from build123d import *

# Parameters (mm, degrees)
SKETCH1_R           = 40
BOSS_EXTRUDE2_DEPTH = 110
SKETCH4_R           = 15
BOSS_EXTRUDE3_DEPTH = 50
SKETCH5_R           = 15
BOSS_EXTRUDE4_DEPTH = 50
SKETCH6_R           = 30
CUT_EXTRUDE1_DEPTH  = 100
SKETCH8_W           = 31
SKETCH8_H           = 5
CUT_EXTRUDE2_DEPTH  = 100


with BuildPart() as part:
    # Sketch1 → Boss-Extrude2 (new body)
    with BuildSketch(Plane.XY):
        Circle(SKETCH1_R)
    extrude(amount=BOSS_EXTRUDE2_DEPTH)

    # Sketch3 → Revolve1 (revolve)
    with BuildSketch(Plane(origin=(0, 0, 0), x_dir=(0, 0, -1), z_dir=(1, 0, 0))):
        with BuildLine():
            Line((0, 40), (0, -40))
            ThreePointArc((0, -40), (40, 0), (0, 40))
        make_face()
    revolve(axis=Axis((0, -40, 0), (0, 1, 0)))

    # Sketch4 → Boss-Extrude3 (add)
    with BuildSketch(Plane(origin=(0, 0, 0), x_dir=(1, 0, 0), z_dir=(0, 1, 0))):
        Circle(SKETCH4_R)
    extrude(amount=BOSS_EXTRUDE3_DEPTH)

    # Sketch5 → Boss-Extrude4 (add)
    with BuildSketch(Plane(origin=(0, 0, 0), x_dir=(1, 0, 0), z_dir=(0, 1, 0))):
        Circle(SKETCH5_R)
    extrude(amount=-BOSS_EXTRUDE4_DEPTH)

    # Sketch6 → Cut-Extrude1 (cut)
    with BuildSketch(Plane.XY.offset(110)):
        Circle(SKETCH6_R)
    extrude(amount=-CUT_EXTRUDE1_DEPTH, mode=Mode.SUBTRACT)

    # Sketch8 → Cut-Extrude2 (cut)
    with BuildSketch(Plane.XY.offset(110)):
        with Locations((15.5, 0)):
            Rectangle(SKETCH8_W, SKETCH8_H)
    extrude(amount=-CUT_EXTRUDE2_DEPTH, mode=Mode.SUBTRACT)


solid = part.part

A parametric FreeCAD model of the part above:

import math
import FreeCAD as App
import Part
import Sketcher

V = App.Vector


def add_polygon(sketch, points):
    """Adds a closed chain of lines whose ends are joined by coincident constraints."""
    first, n = sketch.GeometryCount, len(points)
    for a, b in zip(points, points[1:] + points[:1]):
        sketch.addGeometry(Part.LineSegment(App.Vector(*a, 0), App.Vector(*b, 0)), False)
    for i in range(n):
        sketch.addConstraint(Sketcher.Constraint("Coincident", first + i, 2, first + (i + 1) % n, 1))

doc = App.newDocument("Part")
params = doc.addObject("Spreadsheet::Sheet", "Params")
for row, (alias, value) in enumerate([
    ("sketch1_diameter", "80 mm"),
    ("pad1_length", "110 mm"),
    ("sketch2_radius", "40 mm"),
    ("revolution_angle", "360 deg"),
    ("sketch3_diameter", "30 mm"),
    ("pad2_length", "50 mm"),
    ("sketch4_diameter", "30 mm"),
    ("pad3_length", "50 mm"),
    ("sketch5_diameter", "60 mm"),
    ("pocket1_length", "100 mm"),
    ("sketch6_width", "31 mm"),
    ("sketch6_height", "5 mm"),
    ("pocket2_length", "100 mm"),
], start=1):
    params.set(f"A{row}", alias)
    params.set(f"B{row}", "=" + value)
    params.setAlias(f"B{row}", alias)

body = doc.addObject("PartDesign::Body", "Body")

sketch1 = body.newObject("Sketcher::SketchObject", "Sketch")
sketch1.AttachmentSupport = (doc.getObject("XY_Plane"), [""])
sketch1.MapMode = "FlatFace"
sketch1.addGeometry(Part.Circle(V(0, 0, 0), V(0, 0, 1), 40), False)
sketch1.addConstraint(Sketcher.Constraint("Coincident", 0, 3, -1, 1))
sketch1.addConstraint(Sketcher.Constraint("Diameter", 0, 80.0))
sketch1.setExpression("Constraints[1]", "Params.sketch1_diameter")
pad1 = body.newObject("PartDesign::Pad", "Pad")
pad1.Profile = sketch1
pad1.setExpression("Length", "Params.pad1_length")

sketch2 = body.newObject("Sketcher::SketchObject", "Sketch001")
sketch2.AttachmentSupport = (doc.getObject("YZ_Plane"), [""])
sketch2.MapMode = "FlatFace"
sketch2.addGeometry(Part.LineSegment(V(40, 0, 0), V(-40, 0, 0)), False)
sketch2.addGeometry(Part.ArcOfCircle(Part.Circle(V(0, 0, 0), V(0, 0, 1), 40), math.radians(180), math.radians(360)), False)
sketch2.addConstraint(Sketcher.Constraint("Coincident", 0, 1, 1, 2))
sketch2.addConstraint(Sketcher.Constraint("Coincident", 1, 1, 0, 2))
sketch2.addConstraint(Sketcher.Constraint("Horizontal", 0))
sketch2.addConstraint(Sketcher.Constraint("Coincident", 1, 3, -1, 1))
sketch2.addConstraint(Sketcher.Constraint("PointOnObject", 0, 1, -1))
sketch2.addConstraint(Sketcher.Constraint("Radius", 1, 40.0))
sketch2.setExpression("Constraints[5]", "Params.sketch2_radius")
revolution = body.newObject("PartDesign::Revolution", "Revolution")
revolution.Profile = sketch2
revolution.ReferenceAxis = (sketch2, ["H_Axis"])
revolution.setExpression("Angle", "Params.revolution_angle")

sketch3 = body.newObject("Sketcher::SketchObject", "Sketch002")
sketch3.AttachmentSupport = (doc.getObject("XZ_Plane"), [""])
sketch3.MapMode = "FlatFace"
sketch3.addGeometry(Part.Circle(V(0, 0, 0), V(0, 0, 1), 15), False)
sketch3.addConstraint(Sketcher.Constraint("Coincident", 0, 3, -1, 1))
sketch3.addConstraint(Sketcher.Constraint("Diameter", 0, 30.0))
sketch3.setExpression("Constraints[1]", "Params.sketch3_diameter")
pad2 = body.newObject("PartDesign::Pad", "Pad001")
pad2.Profile = sketch3
pad2.setExpression("Length", "Params.pad2_length")
pad2.Reversed = True

sketch4 = body.newObject("Sketcher::SketchObject", "Sketch003")
sketch4.AttachmentSupport = (doc.getObject("XZ_Plane"), [""])
sketch4.MapMode = "FlatFace"
sketch4.addGeometry(Part.Circle(V(0, 0, 0), V(0, 0, 1), 15), False)
sketch4.addConstraint(Sketcher.Constraint("Coincident", 0, 3, -1, 1))
sketch4.addConstraint(Sketcher.Constraint("Diameter", 0, 30.0))
sketch4.setExpression("Constraints[1]", "Params.sketch4_diameter")
pad3 = body.newObject("PartDesign::Pad", "Pad002")
pad3.Profile = sketch4
pad3.setExpression("Length", "Params.pad3_length")

sketch5 = body.newObject("Sketcher::SketchObject", "Sketch004")
sketch5.AttachmentSupport = (doc.getObject("XY_Plane"), [""])
sketch5.MapMode = "FlatFace"
sketch5.AttachmentOffset = App.Placement(V(0, 0, 110), App.Rotation())
sketch5.addGeometry(Part.Circle(V(0, 0, 0), V(0, 0, 1), 30), False)
sketch5.addConstraint(Sketcher.Constraint("Coincident", 0, 3, -1, 1))
sketch5.addConstraint(Sketcher.Constraint("Diameter", 0, 60.0))
sketch5.setExpression("Constraints[1]", "Params.sketch5_diameter")
pocket1 = body.newObject("PartDesign::Pocket", "Pocket")
pocket1.Profile = sketch5
pocket1.setExpression("Length", "Params.pocket1_length")

sketch6 = body.newObject("Sketcher::SketchObject", "Sketch005")
sketch6.AttachmentSupport = (doc.getObject("XY_Plane"), [""])
sketch6.MapMode = "FlatFace"
sketch6.AttachmentOffset = App.Placement(V(0, 0, 110), App.Rotation())
add_polygon(sketch6, [(0, 2.5), (0, -2.5), (31, -2.5), (31, 2.5)])
sketch6.addConstraint(Sketcher.Constraint("Vertical", 0))
sketch6.addConstraint(Sketcher.Constraint("Horizontal", 1))
sketch6.addConstraint(Sketcher.Constraint("Vertical", 2))
sketch6.addConstraint(Sketcher.Constraint("Horizontal", 3))
sketch6.addConstraint(Sketcher.Constraint("Symmetric", 0, 2, 3, 2, -1, 1))
sketch6.addConstraint(Sketcher.Constraint("DistanceX", 1, 1, 1, 2, 31.0))
sketch6.addConstraint(Sketcher.Constraint("DistanceY", 0, 2, 0, 1, 5.0))
sketch6.setExpression("Constraints[9]", "Params.sketch6_width")
sketch6.setExpression("Constraints[10]", "Params.sketch6_height")
pocket2 = body.newObject("PartDesign::Pocket", "Pocket001")
pocket2.Profile = sketch6
pocket2.setExpression("Length", "Params.pocket2_length")

doc.recompute()
